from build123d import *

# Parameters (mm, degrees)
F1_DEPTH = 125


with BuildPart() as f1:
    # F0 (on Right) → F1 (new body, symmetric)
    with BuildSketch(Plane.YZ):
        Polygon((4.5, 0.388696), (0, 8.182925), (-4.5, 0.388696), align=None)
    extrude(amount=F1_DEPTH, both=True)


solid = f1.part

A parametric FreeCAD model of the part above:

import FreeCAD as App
import Part
import Sketcher
Q = App.Units.Quantity


def add_polygon(sketch, points):
    """Adds a closed chain of lines whose ends are joined by coincident constraints."""
    first, n = sketch.GeometryCount, len(points)
    for a, b in zip(points, points[1:] + points[:1]):
        sketch.addGeometry(Part.LineSegment(App.Vector(*a, 0), App.Vector(*b, 0)), False)
    for i in range(n):
        sketch.addConstraint(Sketcher.Constraint("Coincident", first + i, 2, first + (i + 1) % n, 1))

doc = App.newDocument("Part")
body = doc.addObject("PartDesign::Body", "Body")

# Sketch on YZ plane
sketch1 = body.newObject("Sketcher::SketchObject", "Sketch")
sketch1.AttachmentSupport = (doc.getObject("YZ_Plane"), [""])
sketch1.MapMode = "FlatFace"
add_polygon(sketch1, [(4.5, 0.388696), (0, 8.182925), (-4.5, 0.388696)])  # lines 0-2
sketch1.addConstraint([
    Sketcher.Constraint("Horizontal", 2),
    Sketcher.Constraint("PointOnObject", 0, 2, -2),
    Sketcher.Constraint("Equal", 0, 1),
    Sketcher.Constraint("DistanceX", 2, 1, 2, 2, Q("9 mm")),
    Sketcher.Constraint("Angle", 0, Q("119.999999 deg")),
    Sketcher.Constraint("DistanceY", -1, 1, 0, 2, Q("8.182925 mm")),
])
pad1 = body.newObject("PartDesign::Pad", "Pad")
pad1.Profile = sketch1
pad1.Length = 250
pad1.Midplane = True

doc.recompute()
